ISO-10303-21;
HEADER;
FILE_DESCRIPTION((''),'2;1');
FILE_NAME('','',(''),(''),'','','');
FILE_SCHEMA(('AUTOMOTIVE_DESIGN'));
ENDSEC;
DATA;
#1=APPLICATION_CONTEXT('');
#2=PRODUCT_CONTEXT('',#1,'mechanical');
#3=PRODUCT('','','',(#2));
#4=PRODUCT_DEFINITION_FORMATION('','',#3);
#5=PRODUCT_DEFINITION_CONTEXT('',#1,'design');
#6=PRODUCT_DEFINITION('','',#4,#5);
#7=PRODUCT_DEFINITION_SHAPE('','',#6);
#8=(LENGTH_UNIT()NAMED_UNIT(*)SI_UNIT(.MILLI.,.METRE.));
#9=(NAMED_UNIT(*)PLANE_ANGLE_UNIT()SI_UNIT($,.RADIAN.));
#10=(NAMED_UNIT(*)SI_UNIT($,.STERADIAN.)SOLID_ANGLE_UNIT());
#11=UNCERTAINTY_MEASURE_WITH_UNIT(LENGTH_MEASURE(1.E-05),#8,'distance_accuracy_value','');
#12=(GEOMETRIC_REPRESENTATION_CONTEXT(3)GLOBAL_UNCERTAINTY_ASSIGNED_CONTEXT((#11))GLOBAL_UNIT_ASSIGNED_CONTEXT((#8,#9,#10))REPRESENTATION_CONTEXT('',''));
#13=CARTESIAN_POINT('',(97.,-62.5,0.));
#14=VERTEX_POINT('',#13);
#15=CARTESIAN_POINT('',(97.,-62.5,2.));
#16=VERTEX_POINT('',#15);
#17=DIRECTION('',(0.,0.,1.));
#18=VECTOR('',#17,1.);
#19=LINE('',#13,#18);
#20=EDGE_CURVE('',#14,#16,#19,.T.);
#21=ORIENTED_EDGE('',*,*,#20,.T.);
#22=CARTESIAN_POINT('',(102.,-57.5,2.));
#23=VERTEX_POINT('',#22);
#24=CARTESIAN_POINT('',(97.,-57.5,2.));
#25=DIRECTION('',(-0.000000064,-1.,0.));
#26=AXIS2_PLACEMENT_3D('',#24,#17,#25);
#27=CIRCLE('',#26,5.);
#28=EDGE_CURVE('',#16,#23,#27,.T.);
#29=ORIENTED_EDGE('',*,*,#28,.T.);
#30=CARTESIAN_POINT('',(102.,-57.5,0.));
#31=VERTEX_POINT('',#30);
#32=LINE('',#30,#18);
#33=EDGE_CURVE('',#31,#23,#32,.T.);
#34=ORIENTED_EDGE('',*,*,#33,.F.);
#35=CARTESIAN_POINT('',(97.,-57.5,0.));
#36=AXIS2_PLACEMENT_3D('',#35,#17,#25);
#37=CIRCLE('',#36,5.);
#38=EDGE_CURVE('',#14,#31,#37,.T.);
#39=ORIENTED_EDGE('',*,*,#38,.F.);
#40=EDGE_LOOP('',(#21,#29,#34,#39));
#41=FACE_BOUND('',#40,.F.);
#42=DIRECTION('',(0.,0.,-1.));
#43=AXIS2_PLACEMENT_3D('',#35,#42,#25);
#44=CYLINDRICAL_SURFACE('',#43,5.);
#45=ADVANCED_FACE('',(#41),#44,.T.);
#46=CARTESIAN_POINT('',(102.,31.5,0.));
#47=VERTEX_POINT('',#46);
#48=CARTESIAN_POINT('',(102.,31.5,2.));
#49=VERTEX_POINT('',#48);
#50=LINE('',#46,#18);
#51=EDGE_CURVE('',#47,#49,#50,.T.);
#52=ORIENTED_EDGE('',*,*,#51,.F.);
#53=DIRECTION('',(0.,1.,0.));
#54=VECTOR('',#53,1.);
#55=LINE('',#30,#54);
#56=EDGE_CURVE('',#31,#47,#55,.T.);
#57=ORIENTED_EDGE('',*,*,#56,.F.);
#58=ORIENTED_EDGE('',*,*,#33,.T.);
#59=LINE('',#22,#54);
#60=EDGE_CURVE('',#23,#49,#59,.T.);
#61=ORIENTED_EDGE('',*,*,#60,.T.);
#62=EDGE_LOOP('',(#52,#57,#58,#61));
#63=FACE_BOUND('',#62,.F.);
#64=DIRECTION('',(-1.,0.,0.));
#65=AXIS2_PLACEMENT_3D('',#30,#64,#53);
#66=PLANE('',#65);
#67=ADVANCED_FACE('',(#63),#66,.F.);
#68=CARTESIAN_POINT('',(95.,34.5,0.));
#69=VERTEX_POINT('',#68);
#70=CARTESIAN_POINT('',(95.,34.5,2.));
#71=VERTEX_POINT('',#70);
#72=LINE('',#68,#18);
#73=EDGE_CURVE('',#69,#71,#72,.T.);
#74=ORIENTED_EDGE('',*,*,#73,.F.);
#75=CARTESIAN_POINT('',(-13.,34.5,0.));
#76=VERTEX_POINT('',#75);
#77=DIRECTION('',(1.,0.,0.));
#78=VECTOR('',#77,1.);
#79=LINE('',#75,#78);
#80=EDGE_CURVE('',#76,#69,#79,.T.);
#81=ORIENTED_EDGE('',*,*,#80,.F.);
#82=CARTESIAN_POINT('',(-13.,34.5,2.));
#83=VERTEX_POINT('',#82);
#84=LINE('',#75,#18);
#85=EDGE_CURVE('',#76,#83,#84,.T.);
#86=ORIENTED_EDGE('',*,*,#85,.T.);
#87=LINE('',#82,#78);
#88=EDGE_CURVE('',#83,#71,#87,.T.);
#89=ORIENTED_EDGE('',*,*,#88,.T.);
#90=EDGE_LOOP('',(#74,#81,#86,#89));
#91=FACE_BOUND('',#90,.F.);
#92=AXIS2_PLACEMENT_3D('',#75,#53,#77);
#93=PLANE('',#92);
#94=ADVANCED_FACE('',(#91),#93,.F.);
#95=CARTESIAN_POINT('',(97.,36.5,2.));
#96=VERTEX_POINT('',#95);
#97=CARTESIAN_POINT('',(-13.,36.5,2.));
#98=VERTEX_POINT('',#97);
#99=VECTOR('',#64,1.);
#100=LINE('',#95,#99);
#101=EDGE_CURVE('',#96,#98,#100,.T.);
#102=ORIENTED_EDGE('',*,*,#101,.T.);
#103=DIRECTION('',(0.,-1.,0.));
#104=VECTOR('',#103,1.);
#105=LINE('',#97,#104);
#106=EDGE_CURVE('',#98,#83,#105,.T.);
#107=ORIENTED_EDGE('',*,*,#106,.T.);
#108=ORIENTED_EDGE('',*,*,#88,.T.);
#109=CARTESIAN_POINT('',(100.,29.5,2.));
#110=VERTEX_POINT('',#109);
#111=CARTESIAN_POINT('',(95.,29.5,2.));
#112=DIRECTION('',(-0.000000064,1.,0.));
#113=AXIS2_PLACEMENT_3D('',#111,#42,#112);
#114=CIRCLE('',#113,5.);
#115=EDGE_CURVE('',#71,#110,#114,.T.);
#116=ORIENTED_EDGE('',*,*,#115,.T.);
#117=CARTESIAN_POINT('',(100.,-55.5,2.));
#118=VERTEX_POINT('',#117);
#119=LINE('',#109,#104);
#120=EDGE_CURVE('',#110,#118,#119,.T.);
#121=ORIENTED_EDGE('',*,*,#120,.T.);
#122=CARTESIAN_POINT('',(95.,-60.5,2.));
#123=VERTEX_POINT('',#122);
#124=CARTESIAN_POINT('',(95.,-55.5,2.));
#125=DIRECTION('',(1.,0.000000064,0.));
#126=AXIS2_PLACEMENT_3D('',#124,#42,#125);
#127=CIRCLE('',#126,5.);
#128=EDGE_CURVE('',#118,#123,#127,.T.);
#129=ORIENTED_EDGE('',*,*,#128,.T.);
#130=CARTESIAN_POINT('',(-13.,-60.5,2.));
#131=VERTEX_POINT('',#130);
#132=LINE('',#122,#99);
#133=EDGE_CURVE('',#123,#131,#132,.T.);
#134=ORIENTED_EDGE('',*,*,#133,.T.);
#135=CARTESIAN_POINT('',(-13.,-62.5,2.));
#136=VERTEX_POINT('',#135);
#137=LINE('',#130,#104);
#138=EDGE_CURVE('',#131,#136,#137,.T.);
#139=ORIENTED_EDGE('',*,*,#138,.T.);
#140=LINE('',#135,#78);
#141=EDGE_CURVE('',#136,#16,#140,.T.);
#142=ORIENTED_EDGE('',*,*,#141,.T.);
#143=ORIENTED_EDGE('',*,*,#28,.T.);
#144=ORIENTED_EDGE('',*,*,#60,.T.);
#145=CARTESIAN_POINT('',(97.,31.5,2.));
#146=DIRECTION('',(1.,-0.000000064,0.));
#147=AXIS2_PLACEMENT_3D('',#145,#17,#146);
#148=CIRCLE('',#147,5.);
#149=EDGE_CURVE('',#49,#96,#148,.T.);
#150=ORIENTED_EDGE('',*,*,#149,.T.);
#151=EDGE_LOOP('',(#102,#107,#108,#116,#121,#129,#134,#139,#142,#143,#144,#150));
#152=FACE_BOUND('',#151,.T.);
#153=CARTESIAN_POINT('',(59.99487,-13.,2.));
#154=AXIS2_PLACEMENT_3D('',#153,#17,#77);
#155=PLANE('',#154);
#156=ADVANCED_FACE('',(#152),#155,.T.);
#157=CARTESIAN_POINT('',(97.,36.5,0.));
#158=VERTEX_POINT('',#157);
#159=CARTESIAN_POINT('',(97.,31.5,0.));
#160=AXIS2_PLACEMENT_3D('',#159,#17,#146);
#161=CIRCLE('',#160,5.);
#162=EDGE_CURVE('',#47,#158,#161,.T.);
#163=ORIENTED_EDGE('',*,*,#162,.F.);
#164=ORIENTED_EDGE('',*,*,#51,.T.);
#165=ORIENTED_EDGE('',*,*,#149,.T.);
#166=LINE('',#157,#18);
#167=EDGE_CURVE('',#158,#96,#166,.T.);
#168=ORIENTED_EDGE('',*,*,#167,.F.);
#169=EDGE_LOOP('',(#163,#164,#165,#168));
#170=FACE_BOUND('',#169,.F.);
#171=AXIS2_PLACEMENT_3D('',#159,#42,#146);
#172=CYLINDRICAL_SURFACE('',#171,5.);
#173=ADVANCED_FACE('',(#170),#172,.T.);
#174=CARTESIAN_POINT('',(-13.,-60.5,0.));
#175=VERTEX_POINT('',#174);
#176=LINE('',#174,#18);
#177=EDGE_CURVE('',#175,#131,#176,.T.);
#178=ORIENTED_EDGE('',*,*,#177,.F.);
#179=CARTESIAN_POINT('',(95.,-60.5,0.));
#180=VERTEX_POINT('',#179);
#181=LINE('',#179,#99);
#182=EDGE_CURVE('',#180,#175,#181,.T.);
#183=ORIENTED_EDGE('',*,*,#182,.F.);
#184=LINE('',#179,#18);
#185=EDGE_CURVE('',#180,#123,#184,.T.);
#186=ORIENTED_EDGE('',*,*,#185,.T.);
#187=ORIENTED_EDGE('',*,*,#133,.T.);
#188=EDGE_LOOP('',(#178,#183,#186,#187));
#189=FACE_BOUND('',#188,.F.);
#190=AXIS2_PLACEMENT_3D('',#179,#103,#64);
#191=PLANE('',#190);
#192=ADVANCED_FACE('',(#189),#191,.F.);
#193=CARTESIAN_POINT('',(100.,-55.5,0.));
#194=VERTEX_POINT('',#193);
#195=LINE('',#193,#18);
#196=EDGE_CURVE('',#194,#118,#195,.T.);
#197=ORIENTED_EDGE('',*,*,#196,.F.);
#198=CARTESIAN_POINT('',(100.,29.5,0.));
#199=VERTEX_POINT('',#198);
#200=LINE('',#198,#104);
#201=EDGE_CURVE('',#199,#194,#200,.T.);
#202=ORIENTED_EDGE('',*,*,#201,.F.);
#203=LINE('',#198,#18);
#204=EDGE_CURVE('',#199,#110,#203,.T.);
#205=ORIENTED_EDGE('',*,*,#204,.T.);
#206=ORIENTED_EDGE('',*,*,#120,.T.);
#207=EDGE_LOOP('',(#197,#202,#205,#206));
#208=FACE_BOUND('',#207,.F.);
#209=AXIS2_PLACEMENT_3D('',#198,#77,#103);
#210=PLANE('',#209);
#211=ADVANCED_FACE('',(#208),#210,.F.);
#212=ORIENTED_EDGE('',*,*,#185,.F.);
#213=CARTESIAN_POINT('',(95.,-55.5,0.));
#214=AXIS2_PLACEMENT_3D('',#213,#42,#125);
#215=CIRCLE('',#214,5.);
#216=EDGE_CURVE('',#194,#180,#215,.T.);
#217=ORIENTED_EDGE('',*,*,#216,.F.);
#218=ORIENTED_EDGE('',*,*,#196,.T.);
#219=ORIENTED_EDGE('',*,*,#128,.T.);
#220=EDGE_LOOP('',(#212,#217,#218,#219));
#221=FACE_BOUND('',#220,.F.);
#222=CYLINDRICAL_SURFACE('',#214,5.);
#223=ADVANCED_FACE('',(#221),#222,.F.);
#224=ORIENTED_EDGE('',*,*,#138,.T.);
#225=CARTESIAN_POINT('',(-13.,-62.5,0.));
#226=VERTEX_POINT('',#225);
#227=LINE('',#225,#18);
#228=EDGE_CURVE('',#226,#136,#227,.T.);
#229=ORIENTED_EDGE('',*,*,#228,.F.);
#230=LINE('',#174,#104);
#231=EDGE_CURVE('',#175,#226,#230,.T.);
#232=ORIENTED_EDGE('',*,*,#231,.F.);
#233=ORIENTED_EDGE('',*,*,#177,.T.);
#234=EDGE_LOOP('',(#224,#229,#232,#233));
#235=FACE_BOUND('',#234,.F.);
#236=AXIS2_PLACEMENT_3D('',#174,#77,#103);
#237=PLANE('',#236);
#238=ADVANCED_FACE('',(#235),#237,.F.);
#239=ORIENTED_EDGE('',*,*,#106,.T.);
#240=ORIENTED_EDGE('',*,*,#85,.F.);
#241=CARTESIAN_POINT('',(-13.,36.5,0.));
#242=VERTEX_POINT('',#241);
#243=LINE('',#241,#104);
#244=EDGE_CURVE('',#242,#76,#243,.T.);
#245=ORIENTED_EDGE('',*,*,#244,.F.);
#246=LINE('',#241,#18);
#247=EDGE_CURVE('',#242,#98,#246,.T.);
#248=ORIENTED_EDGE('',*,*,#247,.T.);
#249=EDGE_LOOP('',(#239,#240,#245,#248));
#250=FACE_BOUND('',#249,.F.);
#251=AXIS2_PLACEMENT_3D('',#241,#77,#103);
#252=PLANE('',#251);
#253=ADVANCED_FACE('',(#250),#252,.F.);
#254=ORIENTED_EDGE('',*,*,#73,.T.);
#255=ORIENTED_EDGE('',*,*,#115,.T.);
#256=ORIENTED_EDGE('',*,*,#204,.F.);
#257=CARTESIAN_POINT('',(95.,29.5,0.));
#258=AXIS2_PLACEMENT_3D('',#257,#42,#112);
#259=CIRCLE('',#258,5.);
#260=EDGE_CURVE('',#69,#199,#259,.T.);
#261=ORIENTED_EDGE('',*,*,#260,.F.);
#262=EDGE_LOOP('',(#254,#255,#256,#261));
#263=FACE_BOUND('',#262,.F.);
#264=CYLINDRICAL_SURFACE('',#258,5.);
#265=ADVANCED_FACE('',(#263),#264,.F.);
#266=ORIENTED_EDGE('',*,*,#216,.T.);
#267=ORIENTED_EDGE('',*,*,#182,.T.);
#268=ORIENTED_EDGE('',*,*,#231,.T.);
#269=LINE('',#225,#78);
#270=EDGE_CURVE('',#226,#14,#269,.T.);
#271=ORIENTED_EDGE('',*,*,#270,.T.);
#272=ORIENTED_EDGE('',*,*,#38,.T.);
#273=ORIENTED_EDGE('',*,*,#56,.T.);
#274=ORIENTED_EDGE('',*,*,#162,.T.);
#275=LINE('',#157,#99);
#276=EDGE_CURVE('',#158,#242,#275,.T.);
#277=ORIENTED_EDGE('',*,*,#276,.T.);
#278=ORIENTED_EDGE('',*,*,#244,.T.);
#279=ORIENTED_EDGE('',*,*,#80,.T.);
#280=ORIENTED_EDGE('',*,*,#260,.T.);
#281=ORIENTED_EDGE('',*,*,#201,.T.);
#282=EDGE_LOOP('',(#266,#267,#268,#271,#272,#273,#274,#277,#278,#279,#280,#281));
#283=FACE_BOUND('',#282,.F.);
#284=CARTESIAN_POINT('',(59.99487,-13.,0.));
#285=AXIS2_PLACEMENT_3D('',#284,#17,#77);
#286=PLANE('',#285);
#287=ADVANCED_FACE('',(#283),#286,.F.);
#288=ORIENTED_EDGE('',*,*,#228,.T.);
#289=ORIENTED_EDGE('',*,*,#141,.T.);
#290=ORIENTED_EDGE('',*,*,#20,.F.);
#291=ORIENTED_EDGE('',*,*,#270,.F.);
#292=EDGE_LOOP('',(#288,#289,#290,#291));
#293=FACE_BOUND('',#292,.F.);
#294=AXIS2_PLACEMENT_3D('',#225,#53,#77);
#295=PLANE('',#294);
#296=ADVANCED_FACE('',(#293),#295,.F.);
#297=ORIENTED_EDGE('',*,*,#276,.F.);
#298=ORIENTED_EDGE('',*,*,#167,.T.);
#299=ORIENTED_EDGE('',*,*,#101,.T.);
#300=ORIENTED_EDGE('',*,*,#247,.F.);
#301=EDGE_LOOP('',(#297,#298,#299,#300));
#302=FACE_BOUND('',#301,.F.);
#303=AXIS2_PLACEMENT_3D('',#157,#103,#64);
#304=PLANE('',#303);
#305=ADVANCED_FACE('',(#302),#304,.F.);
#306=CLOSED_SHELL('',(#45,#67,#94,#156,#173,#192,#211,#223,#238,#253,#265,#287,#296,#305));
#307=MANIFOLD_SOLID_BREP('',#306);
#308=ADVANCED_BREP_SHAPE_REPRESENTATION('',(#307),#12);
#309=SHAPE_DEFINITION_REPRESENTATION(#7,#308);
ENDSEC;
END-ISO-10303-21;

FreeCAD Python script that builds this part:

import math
import FreeCAD as App
import Part
import Sketcher

V = App.Vector
Q = App.Units.Quantity

doc = App.newDocument("Part")
body = doc.addObject("PartDesign::Body", "Body")

# Sketch on XY plane
sketch1 = body.newObject("Sketcher::SketchObject", "Sketch")
sketch1.AttachmentSupport = (doc.getObject("XY_Plane"), [""])
sketch1.MapMode = "FlatFace"
sketch1.addGeometry([
    Part.ArcOfCircle(Part.Circle(V(95, -55.5, 0), V(0, 0, 1), 5), math.radians(-90), math.radians(0)),  # 0
    Part.LineSegment(V(95, -60.5, 0), V(-13, -60.5, 0)),  # 1
    Part.LineSegment(V(-13, -60.5, 0), V(-13, -62.5, 0)),  # 2
    Part.LineSegment(V(-13, -62.5, 0), V(97, -62.5, 0)),  # 3
    Part.ArcOfCircle(Part.Circle(V(97, -57.5, 0), V(0, 0, 1), 5), math.radians(-90), math.radians(0)),  # 4
    Part.LineSegment(V(102, -57.5, 0), V(102, 31.5, 0)),  # 5
    Part.ArcOfCircle(Part.Circle(V(97, 31.5, 0), V(0, 0, 1), 5), math.radians(0), math.radians(90)),  # 6
    Part.LineSegment(V(97, 36.5, 0), V(-13, 36.5, 0)),  # 7
    Part.LineSegment(V(-13, 36.5, 0), V(-13, 34.5, 0)),  # 8
    Part.LineSegment(V(-13, 34.5, 0), V(95, 34.5, 0)),  # 9
    Part.ArcOfCircle(Part.Circle(V(95, 29.5, 0), V(0, 0, 1), 5), math.radians(0), math.radians(90)),  # 10
    Part.LineSegment(V(100, 29.5, 0), V(100, -55.5, 0)),  # 11
], False)
sketch1.addConstraint([
    Sketcher.Constraint("Tangent", 0, 1, 1, 1),
    Sketcher.Constraint("Coincident", 1, 2, 2, 1),
    Sketcher.Constraint("Coincident", 2, 2, 3, 1),
    Sketcher.Constraint("Tangent", 3, 2, 4, 1),
    Sketcher.Constraint("Tangent", 4, 2, 5, 1),
    Sketcher.Constraint("Tangent", 5, 2, 6, 1),
    Sketcher.Constraint("Tangent", 6, 2, 7, 1),
    Sketcher.Constraint("Coincident", 7, 2, 8, 1),
    Sketcher.Constraint("Coincident", 8, 2, 9, 1),
    Sketcher.Constraint("Tangent", 9, 2, 10, 2),
    Sketcher.Constraint("Tangent", 10, 1, 11, 1),
    Sketcher.Constraint("Tangent", 11, 2, 0, 2),
    Sketcher.Constraint("Horizontal", 1),
    Sketcher.Constraint("Vertical", 2),
    Sketcher.Constraint("Horizontal", 3),
    Sketcher.Constraint("Vertical", 5),
    Sketcher.Constraint("Horizontal", 7),
    Sketcher.Constraint("Vertical", 8),
    Sketcher.Constraint("Horizontal", 9),
    Sketcher.Constraint("Vertical", 11),
    Sketcher.Constraint("Equal", 0, 4),
    Sketcher.Constraint("Equal", 4, 6),
    Sketcher.Constraint("Equal", 6, 10),
    Sketcher.Constraint("Vertical", 2, 2, 7, 2),
    Sketcher.Constraint("Equal", 2, 8),
    Sketcher.Constraint("Radius", 0, Q("5 mm")),
    Sketcher.Constraint("DistanceX", 1, 2, 1, 1, Q("108 mm")),
    Sketcher.Constraint("DistanceX", 3, 1, 3, 2, Q("110 mm")),
    Sketcher.Constraint("DistanceY", 2, 2, 2, 1, Q("2 mm")),
    Sketcher.Constraint("DistanceY", 5, 1, 5, 2, Q("89 mm")),
    Sketcher.Constraint("DistanceX", -1, 1, 0, 3, Q("95 mm")),
    Sketcher.Constraint("DistanceY", 0, 3, -1, 1, Q("55.5 mm")),
])
pad1 = body.newObject("PartDesign::Pad", "Pad")
pad1.Profile = sketch1
pad1.Length = 2

doc.recompute()
